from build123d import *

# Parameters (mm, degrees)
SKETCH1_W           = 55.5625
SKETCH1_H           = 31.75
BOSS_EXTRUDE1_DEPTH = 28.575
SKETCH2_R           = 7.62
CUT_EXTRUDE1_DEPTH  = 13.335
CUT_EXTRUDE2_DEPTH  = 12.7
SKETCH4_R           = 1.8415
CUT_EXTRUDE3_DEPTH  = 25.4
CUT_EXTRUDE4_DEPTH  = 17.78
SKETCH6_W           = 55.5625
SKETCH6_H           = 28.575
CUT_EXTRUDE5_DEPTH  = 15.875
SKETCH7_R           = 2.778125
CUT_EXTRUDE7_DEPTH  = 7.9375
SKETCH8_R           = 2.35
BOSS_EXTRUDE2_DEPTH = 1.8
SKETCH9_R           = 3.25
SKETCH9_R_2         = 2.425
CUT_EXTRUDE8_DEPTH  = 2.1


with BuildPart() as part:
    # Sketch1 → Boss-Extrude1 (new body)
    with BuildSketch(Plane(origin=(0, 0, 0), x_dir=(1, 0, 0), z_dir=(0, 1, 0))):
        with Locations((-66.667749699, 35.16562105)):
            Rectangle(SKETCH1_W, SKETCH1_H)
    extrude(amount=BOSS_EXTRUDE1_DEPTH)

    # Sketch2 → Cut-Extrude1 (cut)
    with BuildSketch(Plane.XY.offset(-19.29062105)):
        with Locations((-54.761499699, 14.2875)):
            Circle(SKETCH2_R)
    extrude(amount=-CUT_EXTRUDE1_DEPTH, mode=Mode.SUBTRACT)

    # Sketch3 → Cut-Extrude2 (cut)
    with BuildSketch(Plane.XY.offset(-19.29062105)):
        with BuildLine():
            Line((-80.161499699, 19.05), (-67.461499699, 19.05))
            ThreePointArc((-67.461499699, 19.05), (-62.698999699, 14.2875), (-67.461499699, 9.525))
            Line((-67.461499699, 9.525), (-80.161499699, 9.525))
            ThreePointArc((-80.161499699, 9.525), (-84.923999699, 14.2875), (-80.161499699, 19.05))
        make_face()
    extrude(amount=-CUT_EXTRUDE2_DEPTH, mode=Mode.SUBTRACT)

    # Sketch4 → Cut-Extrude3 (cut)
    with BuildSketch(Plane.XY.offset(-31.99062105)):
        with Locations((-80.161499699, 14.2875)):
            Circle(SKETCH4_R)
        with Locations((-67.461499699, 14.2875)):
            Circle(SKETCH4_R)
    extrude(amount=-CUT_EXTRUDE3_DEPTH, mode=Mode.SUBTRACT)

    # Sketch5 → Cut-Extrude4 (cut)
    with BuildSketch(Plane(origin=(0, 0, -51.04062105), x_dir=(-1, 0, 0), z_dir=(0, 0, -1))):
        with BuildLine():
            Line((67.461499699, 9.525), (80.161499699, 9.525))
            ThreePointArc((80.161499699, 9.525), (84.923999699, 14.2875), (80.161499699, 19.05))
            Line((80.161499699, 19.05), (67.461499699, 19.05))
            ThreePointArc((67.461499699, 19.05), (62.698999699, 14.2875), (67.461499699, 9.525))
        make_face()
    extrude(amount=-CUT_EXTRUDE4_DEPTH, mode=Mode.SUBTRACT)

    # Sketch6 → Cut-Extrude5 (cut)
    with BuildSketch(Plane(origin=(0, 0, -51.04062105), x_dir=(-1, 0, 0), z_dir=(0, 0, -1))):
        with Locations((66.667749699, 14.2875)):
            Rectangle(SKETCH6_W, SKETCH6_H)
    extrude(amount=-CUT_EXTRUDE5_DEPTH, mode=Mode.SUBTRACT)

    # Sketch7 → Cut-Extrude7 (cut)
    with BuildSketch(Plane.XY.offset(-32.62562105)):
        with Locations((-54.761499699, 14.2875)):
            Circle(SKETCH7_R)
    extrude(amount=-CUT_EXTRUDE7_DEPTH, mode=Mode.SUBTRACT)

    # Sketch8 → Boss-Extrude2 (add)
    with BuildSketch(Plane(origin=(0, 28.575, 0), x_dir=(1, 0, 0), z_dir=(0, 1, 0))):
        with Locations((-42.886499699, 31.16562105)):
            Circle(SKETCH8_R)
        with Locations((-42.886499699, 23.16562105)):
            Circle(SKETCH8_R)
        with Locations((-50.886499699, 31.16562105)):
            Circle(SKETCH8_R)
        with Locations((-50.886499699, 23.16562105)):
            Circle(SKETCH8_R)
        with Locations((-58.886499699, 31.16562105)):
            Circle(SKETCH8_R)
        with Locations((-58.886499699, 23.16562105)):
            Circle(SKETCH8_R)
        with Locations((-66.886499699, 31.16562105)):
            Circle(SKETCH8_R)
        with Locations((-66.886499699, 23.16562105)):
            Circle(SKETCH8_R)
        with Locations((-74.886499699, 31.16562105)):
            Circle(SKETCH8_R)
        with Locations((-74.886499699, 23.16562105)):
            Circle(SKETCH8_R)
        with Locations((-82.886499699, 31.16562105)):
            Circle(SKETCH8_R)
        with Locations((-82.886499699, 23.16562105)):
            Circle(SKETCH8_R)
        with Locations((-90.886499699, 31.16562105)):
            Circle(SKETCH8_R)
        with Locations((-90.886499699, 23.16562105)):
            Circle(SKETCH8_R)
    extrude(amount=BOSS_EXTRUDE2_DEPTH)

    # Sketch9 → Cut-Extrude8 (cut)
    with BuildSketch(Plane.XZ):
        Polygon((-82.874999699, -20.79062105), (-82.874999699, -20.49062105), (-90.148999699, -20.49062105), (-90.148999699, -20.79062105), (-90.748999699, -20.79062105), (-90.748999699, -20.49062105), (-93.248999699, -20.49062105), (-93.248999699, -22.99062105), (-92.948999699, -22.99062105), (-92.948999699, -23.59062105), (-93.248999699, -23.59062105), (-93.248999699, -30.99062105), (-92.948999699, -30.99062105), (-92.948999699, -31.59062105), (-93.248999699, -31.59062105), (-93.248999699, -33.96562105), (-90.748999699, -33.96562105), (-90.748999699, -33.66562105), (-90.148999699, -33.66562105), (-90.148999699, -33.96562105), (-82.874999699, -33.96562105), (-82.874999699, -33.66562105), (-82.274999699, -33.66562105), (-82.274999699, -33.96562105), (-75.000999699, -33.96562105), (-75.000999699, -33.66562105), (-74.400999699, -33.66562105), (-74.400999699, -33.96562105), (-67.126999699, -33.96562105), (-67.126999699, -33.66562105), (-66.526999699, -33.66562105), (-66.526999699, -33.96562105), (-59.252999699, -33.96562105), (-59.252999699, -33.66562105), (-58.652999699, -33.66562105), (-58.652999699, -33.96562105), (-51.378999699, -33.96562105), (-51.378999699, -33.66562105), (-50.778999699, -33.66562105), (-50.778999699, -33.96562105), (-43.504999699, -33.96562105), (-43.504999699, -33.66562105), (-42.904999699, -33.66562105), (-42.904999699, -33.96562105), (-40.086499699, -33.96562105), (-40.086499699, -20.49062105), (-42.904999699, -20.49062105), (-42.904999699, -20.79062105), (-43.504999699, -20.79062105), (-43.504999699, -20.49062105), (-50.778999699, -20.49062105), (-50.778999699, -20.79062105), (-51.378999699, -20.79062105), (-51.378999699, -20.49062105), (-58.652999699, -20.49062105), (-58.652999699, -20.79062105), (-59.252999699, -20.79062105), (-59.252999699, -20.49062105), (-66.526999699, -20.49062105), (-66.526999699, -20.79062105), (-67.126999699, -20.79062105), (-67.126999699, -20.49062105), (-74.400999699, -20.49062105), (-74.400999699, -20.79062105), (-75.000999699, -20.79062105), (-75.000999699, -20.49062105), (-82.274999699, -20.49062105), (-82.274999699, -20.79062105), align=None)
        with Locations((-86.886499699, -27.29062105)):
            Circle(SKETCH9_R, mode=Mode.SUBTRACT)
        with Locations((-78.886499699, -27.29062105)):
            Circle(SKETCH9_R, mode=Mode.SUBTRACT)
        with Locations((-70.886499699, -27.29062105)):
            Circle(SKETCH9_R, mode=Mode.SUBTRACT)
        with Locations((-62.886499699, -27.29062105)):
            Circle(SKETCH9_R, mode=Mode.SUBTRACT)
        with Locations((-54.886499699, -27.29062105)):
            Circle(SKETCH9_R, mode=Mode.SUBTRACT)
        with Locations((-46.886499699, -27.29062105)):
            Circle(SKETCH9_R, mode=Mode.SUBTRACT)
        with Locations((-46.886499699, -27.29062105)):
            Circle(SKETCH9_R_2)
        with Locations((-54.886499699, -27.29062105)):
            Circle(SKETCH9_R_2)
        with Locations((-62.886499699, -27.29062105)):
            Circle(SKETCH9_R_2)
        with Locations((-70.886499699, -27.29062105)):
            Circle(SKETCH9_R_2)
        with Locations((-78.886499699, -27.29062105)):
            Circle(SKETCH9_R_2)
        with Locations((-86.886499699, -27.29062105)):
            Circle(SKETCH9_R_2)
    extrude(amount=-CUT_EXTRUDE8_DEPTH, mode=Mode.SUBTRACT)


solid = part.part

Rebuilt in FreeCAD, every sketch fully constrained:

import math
import FreeCAD as App
import Part
import Sketcher
Q = App.Units.Quantity


def add_polygon(sketch, points):
    """Adds a closed chain of lines whose ends are joined by coincident constraints."""
    first, n = sketch.GeometryCount, len(points)
    for a, b in zip(points, points[1:] + points[:1]):
        sketch.addGeometry(Part.LineSegment(App.Vector(*a, 0), App.Vector(*b, 0)), False)
    for i in range(n):
        sketch.addConstraint(Sketcher.Constraint("Coincident", first + i, 2, first + (i + 1) % n, 1))

doc = App.newDocument("Part")
body = doc.addObject("PartDesign::Body", "Body")

sketch1 = doc.addObject("Sketcher::SketchObject", "Sketch")
body.addObject(sketch1)
sketch1.AttachmentSupport = (doc.XZ_Plane, [""])
sketch1.MapMode = "FlatFace"
add_polygon(sketch1, [(-94.449, -51.040621), (-94.449, -19.290621), (-38.8865, -19.290621), (-38.8865, -51.040621)])
sketch1.addConstraint([
    Sketcher.Constraint("Vertical", 0),
    Sketcher.Constraint("Horizontal", 1),
    Sketcher.Constraint("Vertical", 2),
    Sketcher.Constraint("Horizontal", 3),
    Sketcher.Constraint("DistanceY", 0, 1, 0, 2, Q("1.25 in")),
    Sketcher.Constraint("DistanceX", 1, 1, 1, 2, Q("2.1875 in")),
    Sketcher.Constraint("DistanceX", 0, 2, -1, 1, 94.449),
    Sketcher.Constraint("DistanceY", 0, 2, -1, 1, 19.290621),
])
pad1 = doc.addObject("PartDesign::Pad", "Pad")
body.addObject(pad1)
pad1.Profile = sketch1
pad1.Length = Q("1.125 in")
pad1.Reversed = True

sketch2 = doc.addObject("Sketcher::SketchObject", "Sketch001")
body.addObject(sketch2)
sketch2.AttachmentSupport = (doc.XY_Plane, [""])
sketch2.MapMode = "FlatFace"
sketch2.AttachmentOffset = App.Placement(App.Vector(0, 0, -19.290621), App.Rotation())
sketch2.addGeometry(Part.Circle(App.Vector(-54.7615, 14.2875, 0), App.Vector(0, 0, 1), 7.62), False)
sketch2.addConstraint([
    Sketcher.Constraint("Diameter", 0, Q("0.6 in")),
    Sketcher.Constraint("DistanceY", -1, 1, 0, 3, Q("0.5625 in")),
    Sketcher.Constraint("DistanceX", 0, 3, -1, 1, 54.7615),
])
pocket1 = doc.addObject("PartDesign::Pocket", "Pocket")
body.addObject(pocket1)
pocket1.Profile = sketch2
pocket1.Length = Q("0.525 in")

sketch3 = doc.addObject("Sketcher::SketchObject", "Sketch002")
body.addObject(sketch3)
sketch3.AttachmentSupport = (doc.XY_Plane, [""])
sketch3.MapMode = "FlatFace"
sketch3.AttachmentOffset = App.Placement(App.Vector(0, 0, -19.290621), App.Rotation())
sketch3.addGeometry([
    Part.LineSegment(App.Vector(-67.4615, 19.05, 0), App.Vector(-80.1615, 19.05, 0)),
    Part.ArcOfCircle(Part.Circle(App.Vector(-80.1615, 14.2875, 0), App.Vector(0, 0, 1), 4.7625), math.radians(90), math.radians(270)),
    Part.LineSegment(App.Vector(-80.1615, 9.525, 0), App.Vector(-67.4615, 9.525, 0)),
    Part.ArcOfCircle(Part.Circle(App.Vector(-67.4615, 14.2875, 0), App.Vector(0, 0, 1), 4.7625), math.radians(-90), math.radians(90)),
], False)
sketch3.addConstraint([
    Sketcher.Constraint("Tangent", 0, 2, 1, 1),
    Sketcher.Constraint("Tangent", 1, 2, 2, 1),
    Sketcher.Constraint("Tangent", 2, 2, 3, 1),
    Sketcher.Constraint("Tangent", 3, 2, 0, 1),
    Sketcher.Constraint("Horizontal", 0),
    Sketcher.Constraint("Horizontal", 2),
    Sketcher.Constraint("DistanceX", 0, 2, 0, 1, Q("0.5 in")),
    Sketcher.Constraint("Radius", 1, Q("0.1875 in")),
    Sketcher.Constraint("DistanceY", -1, 1, 0, 2, Q("0.75 in")),
    Sketcher.Constraint("DistanceX", 1, 3, -1, 1, 80.1615),
])
pocket2 = doc.addObject("PartDesign::Pocket", "Pocket001")
body.addObject(pocket2)
pocket2.Profile = sketch3
pocket2.Length = Q("0.5 in")

sketch4 = doc.addObject("Sketcher::SketchObject", "Sketch003")
body.addObject(sketch4)
sketch4.AttachmentSupport = (doc.XY_Plane, [""])
sketch4.MapMode = "FlatFace"
sketch4.AttachmentOffset = App.Placement(App.Vector(0, 0, -31.990621), App.Rotation())
sketch4.addGeometry([
    Part.Circle(App.Vector(-80.1615, 14.2875, 0), App.Vector(0, 0, 1), 1.8415),
    Part.Circle(App.Vector(-67.4615, 14.2875, 0), App.Vector(0, 0, 1), 1.8415),
], False)
sketch4.addConstraint([
    Sketcher.Constraint("Equal", 0, 1),
    Sketcher.Constraint("Horizontal", 0, 3, 1, 3),
    Sketcher.Constraint("Diameter", 0, Q("0.145 in")),
    Sketcher.Constraint("DistanceX", 0, 3, 1, 3, Q("0.5 in")),
    Sketcher.Constraint("DistanceY", -1, 1, 0, 3, Q("0.5625 in")),
    Sketcher.Constraint("DistanceX", 0, 3, -1, 1, 80.1615),
])
pocket3 = doc.addObject("PartDesign::Pocket", "Pocket002")
body.addObject(pocket3)
pocket3.Profile = sketch4
pocket3.Length = Q("1 in")

sketch5 = doc.addObject("Sketcher::SketchObject", "Sketch004")
body.addObject(sketch5)
sketch5.AttachmentSupport = (doc.XY_Plane, [""])
sketch5.MapMode = "FlatFace"
sketch5.AttachmentOffset = App.Placement(App.Vector(0, 0, -51.040621), App.Rotation())
sketch5.addGeometry([
    Part.LineSegment(App.Vector(-67.4615, 9.525, 0), App.Vector(-80.1615, 9.525, 0)),
    Part.ArcOfCircle(Part.Circle(App.Vector(-80.1615, 14.2875, 0), App.Vector(0, 0, 1), 4.7625), math.radians(90), math.radians(270)),
    Part.LineSegment(App.Vector(-80.1615, 19.05, 0), App.Vector(-67.4615, 19.05, 0)),
    Part.ArcOfCircle(Part.Circle(App.Vector(-67.4615, 14.2875, 0), App.Vector(0, 0, 1), 4.7625), math.radians(-90), math.radians(90)),
], False)
sketch5.addConstraint([
    Sketcher.Constraint("Tangent", 0, 2, 1, 2),
    Sketcher.Constraint("Tangent", 1, 1, 2, 1),
    Sketcher.Constraint("Tangent", 2, 2, 3, 2),
    Sketcher.Constraint("Tangent", 3, 1, 0, 1),
    Sketcher.Constraint("Horizontal", 0),
    Sketcher.Constraint("Horizontal", 2),
    Sketcher.Constraint("DistanceX", 0, 2, 0, 1, Q("0.5 in")),
    Sketcher.Constraint("Radius", 1, Q("0.1875 in")),
    Sketcher.Constraint("DistanceY", -1, 1, 1, 1, Q("0.75 in")),
    Sketcher.Constraint("DistanceX", 1, 3, -1, 1, 80.1615),
])
pocket4 = doc.addObject("PartDesign::Pocket", "Pocket003")
body.addObject(pocket4)
pocket4.Profile = sketch5
pocket4.Length = Q("0.7 in")
pocket4.Reversed = True

sketch6 = doc.addObject("Sketcher::SketchObject", "Sketch005")
body.addObject(sketch6)
sketch6.AttachmentSupport = (doc.XY_Plane, [""])
sketch6.MapMode = "FlatFace"
sketch6.AttachmentOffset = App.Placement(App.Vector(0, 0, -51.040621), App.Rotation())
add_polygon(sketch6, [(-38.8865, 28.575), (-38.8865, 0), (-94.449, 0), (-94.449, 28.575)])
sketch6.addConstraint([
    Sketcher.Constraint("Vertical", 0),
    Sketcher.Constraint("Horizontal", 1),
    Sketcher.Constraint("Vertical", 2),
    Sketcher.Constraint("Horizontal", 3),
    Sketcher.Constraint("PointOnObject", 0, 2, -1),
    Sketcher.Constraint("DistanceX", 1, 2, 1, 1, Q("2.1875 in")),
    Sketcher.Constraint("DistanceY", 0, 2, 0, 1, Q("1.125 in")),
    Sketcher.Constraint("DistanceX", 0, 2, -1, 1, 38.8865),
])
pocket5 = doc.addObject("PartDesign::Pocket", "Pocket004")
body.addObject(pocket5)
pocket5.Profile = sketch6
pocket5.Length = Q("0.625 in")
pocket5.Reversed = True

sketch7 = doc.addObject("Sketcher::SketchObject", "Sketch006")
body.addObject(sketch7)
sketch7.AttachmentSupport = (doc.XY_Plane, [""])
sketch7.MapMode = "FlatFace"
sketch7.AttachmentOffset = App.Placement(App.Vector(0, 0, -32.625621), App.Rotation())
sketch7.addGeometry(Part.Circle(App.Vector(-54.7615, 14.2875, 0), App.Vector(0, 0, 1), 2.778125), False)
sketch7.addConstraint([
    Sketcher.Constraint("Diameter", 0, Q("0.21875 in")),
    Sketcher.Constraint("DistanceY", -1, 1, 0, 3, Q("0.5625 in")),
    Sketcher.Constraint("DistanceX", 0, 3, -1, 1, 54.7615),
])
pocket6 = doc.addObject("PartDesign::Pocket", "Pocket005")
body.addObject(pocket6)
pocket6.Profile = sketch7
pocket6.Length = Q("0.3125 in")

sketch8 = doc.addObject("Sketcher::SketchObject", "Sketch007")
body.addObject(sketch8)
sketch8.AttachmentSupport = (doc.XZ_Plane, [""])
sketch8.MapMode = "FlatFace"
sketch8.AttachmentOffset = App.Placement(App.Vector(0, 0, -1.125 * 25.4), App.Rotation())
sketch8.addGeometry([
    Part.Circle(App.Vector(-42.8865, -31.165621, 0), App.Vector(0, 0, 1), 2.35),
    Part.Circle(App.Vector(-42.8865, -23.165621, 0), App.Vector(0, 0, 1), 2.35),
    Part.Circle(App.Vector(-50.8865, -31.165621, 0), App.Vector(0, 0, 1), 2.35),
    Part.Circle(App.Vector(-50.8865, -23.165621, 0), App.Vector(0, 0, 1), 2.35),
    Part.Circle(App.Vector(-58.8865, -31.165621, 0), App.Vector(0, 0, 1), 2.35),
    Part.Circle(App.Vector(-58.8865, -23.165621, 0), App.Vector(0, 0, 1), 2.35),
    Part.Circle(App.Vector(-66.8865, -31.165621, 0), App.Vector(0, 0, 1), 2.35),
    Part.Circle(App.Vector(-66.8865, -23.165621, 0), App.Vector(0, 0, 1), 2.35),
    Part.Circle(App.Vector(-74.8865, -31.165621, 0), App.Vector(0, 0, 1), 2.35),
    Part.Circle(App.Vector(-74.8865, -23.165621, 0), App.Vector(0, 0, 1), 2.35),
    Part.Circle(App.Vector(-82.8865, -31.165621, 0), App.Vector(0, 0, 1), 2.35),
    Part.Circle(App.Vector(-82.8865, -23.165621, 0), App.Vector(0, 0, 1), 2.35),
    Part.Circle(App.Vector(-90.8865, -31.165621, 0), App.Vector(0, 0, 1), 2.35),
    Part.Circle(App.Vector(-90.8865, -23.165621, 0), App.Vector(0, 0, 1), 2.35),
], False)
sketch8.addConstraint([
    Sketcher.Constraint("Equal", 0, 1),
    Sketcher.Constraint("Equal", 1, 2),
    Sketcher.Constraint("Equal", 2, 3),
    Sketcher.Constraint("Equal", 3, 4),
    Sketcher.Constraint("Equal", 4, 5),
    Sketcher.Constraint("Equal", 5, 6),
    Sketcher.Constraint("Equal", 6, 7),
    Sketcher.Constraint("Equal", 7, 8),
    Sketcher.Constraint("Equal", 8, 9),
    Sketcher.Constraint("Equal", 9, 10),
    Sketcher.Constraint("Equal", 10, 11),
    Sketcher.Constraint("Equal", 11, 12),
    Sketcher.Constraint("Equal", 12, 13),
    Sketcher.Constraint("Horizontal", 0, 3, 2, 3),
    Sketcher.Constraint("Horizontal", 1, 3, 3, 3),
    Sketcher.Constraint("Horizontal", 2, 3, 4, 3),
    Sketcher.Constraint("Horizontal", 3, 3, 5, 3),
    Sketcher.Constraint("Horizontal", 4, 3, 6, 3),
    Sketcher.Constraint("Horizontal", 5, 3, 7, 3),
    Sketcher.Constraint("Horizontal", 6, 3, 8, 3),
    Sketcher.Constraint("Horizontal", 7, 3, 9, 3),
    Sketcher.Constraint("Horizontal", 8, 3, 10, 3),
    Sketcher.Constraint("Horizontal", 9, 3, 11, 3),
    Sketcher.Constraint("Horizontal", 10, 3, 12, 3),
    Sketcher.Constraint("Horizontal", 11, 3, 13, 3),
    Sketcher.Constraint("Vertical", 0, 3, 1, 3),
    Sketcher.Constraint("Vertical", 2, 3, 3, 3),
    Sketcher.Constraint("Vertical", 4, 3, 5, 3),
    Sketcher.Constraint("Vertical", 6, 3, 7, 3),
    Sketcher.Constraint("Vertical", 8, 3, 9, 3),
    Sketcher.Constraint("Vertical", 10, 3, 11, 3),
    Sketcher.Constraint("Vertical", 12, 3, 13, 3),
    Sketcher.Constraint("Diameter", 0, 4.7),
    Sketcher.Constraint("DistanceX", 0, 3, -1, 1, 42.8865),
    Sketcher.Constraint("DistanceX", 2, 3, -1, 1, 50.8865),
    Sketcher.Constraint("DistanceX", 4, 3, -1, 1, 58.8865),
    Sketcher.Constraint("DistanceX", 6, 3, -1, 1, 66.8865),
    Sketcher.Constraint("DistanceX", 8, 3, -1, 1, 74.8865),
    Sketcher.Constraint("DistanceX", 10, 3, -1, 1, 82.8865),
    Sketcher.Constraint("DistanceX", 12, 3, -1, 1, 90.8865),
    Sketcher.Constraint("DistanceY", 0, 3, 1, 3, 8.0),
    Sketcher.Constraint("DistanceY", 0, 3, -1, 1, 31.165621),
])
pad2 = doc.addObject("PartDesign::Pad", "Pad001")
body.addObject(pad2)
pad2.Profile = sketch8
pad2.Length = 1.8
pad2.Reversed = True

sketch9 = doc.addObject("Sketcher::SketchObject", "Sketch008")
body.addObject(sketch9)
sketch9.AttachmentSupport = (doc.XZ_Plane, [""])
sketch9.MapMode = "FlatFace"
add_polygon(sketch9, [(-82.875, -20.790621), (-82.875, -20.490621), (-90.149, -20.490621), (-90.149, -20.790621), (-90.749, -20.790621), (-90.749, -20.490621), (-93.249, -20.490621), (-93.249, -22.990621), (-92.949, -22.990621), (-92.949, -23.590621), (-93.249, -23.590621), (-93.249, -30.990621), (-92.949, -30.990621), (-92.949, -31.590621), (-93.249, -31.590621), (-93.249, -33.965621), (-90.749, -33.965621), (-90.749, -33.665621), (-90.149, -33.665621), (-90.149, -33.965621), (-82.875, -33.965621), (-82.875, -33.665621), (-82.275, -33.665621), (-82.275, -33.965621), (-75.001, -33.965621), (-75.001, -33.665621), (-74.401, -33.665621), (-74.401, -33.965621), (-67.127, -33.965621), (-67.127, -33.665621), (-66.527, -33.665621), (-66.527, -33.965621), (-59.253, -33.965621), (-59.253, -33.665621), (-58.653, -33.665621), (-58.653, -33.965621), (-51.379, -33.965621), (-51.379, -33.665621), (-50.779, -33.665621), (-50.779, -33.965621), (-43.505, -33.965621), (-43.505, -33.665621), (-42.905, -33.665621), (-42.905, -33.965621), (-40.0865, -33.965621), (-40.0865, -20.490621), (-42.905, -20.490621), (-42.905, -20.790621), (-43.505, -20.790621), (-43.505, -20.490621), (-50.779, -20.490621), (-50.779, -20.790621), (-51.379, -20.790621), (-51.379, -20.490621), (-58.653, -20.490621), (-58.653, -20.790621), (-59.253, -20.790621), (-59.253, -20.490621), (-66.527, -20.490621), (-66.527, -20.790621), (-67.127, -20.790621), (-67.127, -20.490621), (-74.401, -20.490621), (-74.401, -20.790621), (-75.001, -20.790621), (-75.001, -20.490621), (-82.275, -20.490621), (-82.275, -20.790621)])
sketch9.addGeometry(Part.Circle(App.Vector(-86.8865, -27.290621, 0), App.Vector(0, 0, 1), 3.25), False)
sketch9.addGeometry(Part.Circle(App.Vector(-78.8865, -27.290621, 0), App.Vector(0, 0, 1), 3.25), False)
sketch9.addGeometry(Part.Circle(App.Vector(-70.8865, -27.290621, 0), App.Vector(0, 0, 1), 3.25), False)
sketch9.addGeometry(Part.Circle(App.Vector(-62.8865, -27.290621, 0), App.Vector(0, 0, 1), 3.25), False)
sketch9.addGeometry(Part.Circle(App.Vector(-54.8865, -27.290621, 0), App.Vector(0, 0, 1), 3.25), False)
sketch9.addGeometry(Part.Circle(App.Vector(-46.8865, -27.290621, 0), App.Vector(0, 0, 1), 3.25), False)
sketch9.addGeometry(Part.Circle(App.Vector(-46.8865, -27.290621, 0), App.Vector(0, 0, 1), 2.425), False)
sketch9.addGeometry(Part.Circle(App.Vector(-54.8865, -27.290621, 0), App.Vector(0, 0, 1), 2.425), False)
sketch9.addGeometry(Part.Circle(App.Vector(-62.8865, -27.290621, 0), App.Vector(0, 0, 1), 2.425), False)
sketch9.addGeometry(Part.Circle(App.Vector(-70.8865, -27.290621, 0), App.Vector(0, 0, 1), 2.425), False)
sketch9.addGeometry(Part.Circle(App.Vector(-78.8865, -27.290621, 0), App.Vector(0, 0, 1), 2.425), False)
sketch9.addGeometry(Part.Circle(App.Vector(-86.8865, -27.290621, 0), App.Vector(0, 0, 1), 2.425), False)
sketch9.addConstraint([
    Sketcher.Constraint("Vertical", 0),
    Sketcher.Constraint("Horizontal", 1),
    Sketcher.Constraint("Vertical", 2),
    Sketcher.Constraint("Horizontal", 3),
    Sketcher.Constraint("Vertical", 4),
    Sketcher.Constraint("Horizontal", 5),
    Sketcher.Constraint("Vertical", 6),
    Sketcher.Constraint("Horizontal", 7),
    Sketcher.Constraint("Vertical", 8),
    Sketcher.Constraint("Horizontal", 9),
    Sketcher.Constraint("Vertical", 10),
    Sketcher.Constraint("Horizontal", 11),
    Sketcher.Constraint("Vertical", 12),
    Sketcher.Constraint("Horizontal", 13),
    Sketcher.Constraint("Vertical", 14),
    Sketcher.Constraint("Horizontal", 15),
    Sketcher.Constraint("Vertical", 16),
    Sketcher.Constraint("Horizontal", 17),
    Sketcher.Constraint("Vertical", 18),
    Sketcher.Constraint("Horizontal", 19),
    Sketcher.Constraint("Vertical", 20),
    Sketcher.Constraint("Horizontal", 21),
    Sketcher.Constraint("Vertical", 22),
    Sketcher.Constraint("Horizontal", 23),
    Sketcher.Constraint("Vertical", 24),
    Sketcher.Constraint("Horizontal", 25),
    Sketcher.Constraint("Vertical", 26),
    Sketcher.Constraint("Horizontal", 27),
    Sketcher.Constraint("Vertical", 28),
    Sketcher.Constraint("Horizontal", 29),
    Sketcher.Constraint("Vertical", 30),
    Sketcher.Constraint("Horizontal", 31),
    Sketcher.Constraint("Vertical", 32),
    Sketcher.Constraint("Horizontal", 33),
    Sketcher.Constraint("Vertical", 34),
    Sketcher.Constraint("Horizontal", 35),
    Sketcher.Constraint("Vertical", 36),
    Sketcher.Constraint("Horizontal", 37),
    Sketcher.Constraint("Vertical", 38),
    Sketcher.Constraint("Horizontal", 39),
    Sketcher.Constraint("Vertical", 40),
    Sketcher.Constraint("Horizontal", 41),
    Sketcher.Constraint("Vertical", 42),
    Sketcher.Constraint("Horizontal", 43),
    Sketcher.Constraint("Vertical", 44),
    Sketcher.Constraint("Horizontal", 45),
    Sketcher.Constraint("Vertical", 46),
    Sketcher.Constraint("Horizontal", 47),
    Sketcher.Constraint("Vertical", 48),
    Sketcher.Constraint("Horizontal", 49),
    Sketcher.Constraint("Vertical", 50),
    Sketcher.Constraint("Horizontal", 51),
    Sketcher.Constraint("Vertical", 52),
    Sketcher.Constraint("Horizontal", 53),
    Sketcher.Constraint("Vertical", 54),
    Sketcher.Constraint("Horizontal", 55),
    Sketcher.Constraint("Vertical", 56),
    Sketcher.Constraint("Horizontal", 57),
    Sketcher.Constraint("Vertical", 58),
    Sketcher.Constraint("Horizontal", 59),
    Sketcher.Constraint("Vertical", 60),
    Sketcher.Constraint("Horizontal", 61),
    Sketcher.Constraint("Vertical", 62),
    Sketcher.Constraint("Horizontal", 63),
    Sketcher.Constraint("Vertical", 64),
    Sketcher.Constraint("Horizontal", 65),
    Sketcher.Constraint("Vertical", 66),
    Sketcher.Constraint("Horizontal", 67),
    Sketcher.Constraint("Coincident", 74, 3, 73, 3),
    Sketcher.Constraint("Coincident", 75, 3, 72, 3),
    Sketcher.Constraint("Coincident", 76, 3, 71, 3),
    Sketcher.Constraint("Coincident", 77, 3, 70, 3),
    Sketcher.Constraint("Coincident", 78, 3, 69, 3),
    Sketcher.Constraint("Coincident", 79, 3, 68, 3),
    Sketcher.Constraint("Equal", 68, 69),
    Sketcher.Constraint("Equal", 69, 70),
    Sketcher.Constraint("Equal", 70, 71),
    Sketcher.Constraint("Equal", 71, 72),
    Sketcher.Constraint("Equal", 72, 73),
    Sketcher.Constraint("Equal", 74, 75),
    Sketcher.Constraint("Equal", 75, 76),
    Sketcher.Constraint("Equal", 76, 77),
    Sketcher.Constraint("Equal", 77, 78),
    Sketcher.Constraint("Equal", 78, 79),
    Sketcher.Constraint("Horizontal", 68, 3, 69, 3),
    Sketcher.Constraint("Horizontal", 69, 3, 70, 3),
    Sketcher.Constraint("Horizontal", 70, 3, 71, 3),
    Sketcher.Constraint("Horizontal", 71, 3, 72, 3),
    Sketcher.Constraint("Horizontal", 72, 3, 73, 3),
    Sketcher.Constraint("Horizontal", 1, 2, 4, 2),
    Sketcher.Constraint("Horizontal", 15, 2, 18, 2),
    Sketcher.Constraint("Horizontal", 17, 2, 20, 2),
    Sketcher.Constraint("Horizontal", 19, 2, 22, 2),
    Sketcher.Constraint("Horizontal", 21, 2, 24, 2),
    Sketcher.Constraint("Horizontal", 23, 2, 26, 2),
    Sketcher.Constraint("Horizontal", 25, 2, 28, 2),
    Sketcher.Constraint("Horizontal", 27, 2, 30, 2),
    Sketcher.Constraint("Horizontal", 29, 2, 32, 2),
    Sketcher.Constraint("Horizontal", 31, 2, 34, 2),
    Sketcher.Constraint("Horizontal", 33, 2, 36, 2),
    Sketcher.Constraint("Horizontal", 35, 2, 38, 2),
    Sketcher.Constraint("Horizontal", 37, 2, 40, 2),
    Sketcher.Constraint("Horizontal", 39, 2, 42, 2),
    Sketcher.Constraint("Horizontal", 5, 2, 44, 2),
    Sketcher.Constraint("Horizontal", 3, 2, 46, 2),
    Sketcher.Constraint("Horizontal", 45, 2, 48, 2),
    Sketcher.Constraint("Horizontal", 47, 2, 50, 2),
    Sketcher.Constraint("Horizontal", 49, 2, 52, 2),
    Sketcher.Constraint("Horizontal", 51, 2, 54, 2),
    Sketcher.Constraint("Horizontal", 53, 2, 56, 2),
    Sketcher.Constraint("Horizontal", 55, 2, 58, 2),
    Sketcher.Constraint("Horizontal", 57, 2, 60, 2),
    Sketcher.Constraint("Horizontal", 59, 2, 62, 2),
    Sketcher.Constraint("Horizontal", 61, 2, 64, 2),
    Sketcher.Constraint("Horizontal", 63, 2, 66, 2),
    Sketcher.Constraint("Vertical", 6, 2, 9, 2),
    Sketcher.Constraint("Vertical", 8, 2, 11, 2),
    Sketcher.Constraint("Vertical", 10, 2, 13, 2),
    Sketcher.Constraint("Vertical", 4, 2, 15, 2),
    Sketcher.Constraint("Vertical", 2, 2, 17, 2),
    Sketcher.Constraint("Vertical", 0, 2, 19, 2),
    Sketcher.Constraint("Vertical", 42, 2, 45, 2),
    Sketcher.Constraint("Vertical", 40, 2, 47, 2),
    Sketcher.Constraint("Vertical", 38, 2, 49, 2),
    Sketcher.Constraint("Vertical", 36, 2, 51, 2),
    Sketcher.Constraint("Vertical", 34, 2, 53, 2),
    Sketcher.Constraint("Vertical", 32, 2, 55, 2),
    Sketcher.Constraint("Vertical", 30, 2, 57, 2),
    Sketcher.Constraint("Vertical", 28, 2, 59, 2),
    Sketcher.Constraint("Vertical", 26, 2, 61, 2),
    Sketcher.Constraint("Vertical", 24, 2, 63, 2),
    Sketcher.Constraint("Vertical", 22, 2, 65, 2),
    Sketcher.Constraint("Equal", 17, 21),
    Sketcher.Constraint("Equal", 19, 23),
    Sketcher.Constraint("Equal", 21, 25),
    Sketcher.Constraint("Equal", 23, 27),
    Sketcher.Constraint("Equal", 25, 29),
    Sketcher.Constraint("Equal", 27, 31),
    Sketcher.Constraint("Equal", 29, 33),
    Sketcher.Constraint("Equal", 31, 35),
    Sketcher.Constraint("Equal", 33, 37),
    Sketcher.Constraint("Equal", 35, 39),
    Sketcher.Constraint("Equal", 37, 41),
    Sketcher.Constraint("Equal", 13, 0),
    Sketcher.Constraint("Equal", 15, 6),
    Sketcher.Constraint("Equal", 67, 8),
    Sketcher.Constraint("Equal", 8, 12),
    Sketcher.Constraint("Equal", 4, 16),
    Sketcher.Constraint("Diameter", 68, 6.5),
    Sketcher.Constraint("Diameter", 74, 4.85),
    Sketcher.Constraint("DistanceX", 1, 2, 1, 1, 7.274),
    Sketcher.Constraint("DistanceX", 3, 2, 3, 1, 0.6),
    Sketcher.Constraint("DistanceX", 5, 2, 5, 1, 2.5),
    Sketcher.Constraint("DistanceX", 7, 1, 7, 2, 0.3),
    Sketcher.Constraint("DistanceX", 43, 1, 43, 2, 2.8185),
    Sketcher.Constraint("DistanceY", 10, 2, 10, 1, 7.4),
    Sketcher.Constraint("DistanceY", 14, 2, 14, 1, 2.375),
    Sketcher.Constraint("DistanceX", 68, 3, -1, 1, 86.8865),
    Sketcher.Constraint("DistanceX", 69, 3, -1, 1, 78.8865),
    Sketcher.Constraint("DistanceX", 70, 3, -1, 1, 70.8865),
    Sketcher.Constraint("DistanceX", 71, 3, -1, 1, 62.8865),
    Sketcher.Constraint("DistanceX", 72, 3, -1, 1, 54.8865),
    Sketcher.Constraint("DistanceX", 73, 3, -1, 1, 46.8865),
    Sketcher.Constraint("DistanceX", 0, 2, -1, 1, 82.875),
    Sketcher.Constraint("DistanceY", 68, 3, -1, 1, 27.290621),
    Sketcher.Constraint("DistanceY", 0, 2, -1, 1, 20.490621),
])
pocket7 = doc.addObject("PartDesign::Pocket", "Pocket006")
body.addObject(pocket7)
pocket7.Profile = sketch9
pocket7.Length = 2.1

doc.recompute()
